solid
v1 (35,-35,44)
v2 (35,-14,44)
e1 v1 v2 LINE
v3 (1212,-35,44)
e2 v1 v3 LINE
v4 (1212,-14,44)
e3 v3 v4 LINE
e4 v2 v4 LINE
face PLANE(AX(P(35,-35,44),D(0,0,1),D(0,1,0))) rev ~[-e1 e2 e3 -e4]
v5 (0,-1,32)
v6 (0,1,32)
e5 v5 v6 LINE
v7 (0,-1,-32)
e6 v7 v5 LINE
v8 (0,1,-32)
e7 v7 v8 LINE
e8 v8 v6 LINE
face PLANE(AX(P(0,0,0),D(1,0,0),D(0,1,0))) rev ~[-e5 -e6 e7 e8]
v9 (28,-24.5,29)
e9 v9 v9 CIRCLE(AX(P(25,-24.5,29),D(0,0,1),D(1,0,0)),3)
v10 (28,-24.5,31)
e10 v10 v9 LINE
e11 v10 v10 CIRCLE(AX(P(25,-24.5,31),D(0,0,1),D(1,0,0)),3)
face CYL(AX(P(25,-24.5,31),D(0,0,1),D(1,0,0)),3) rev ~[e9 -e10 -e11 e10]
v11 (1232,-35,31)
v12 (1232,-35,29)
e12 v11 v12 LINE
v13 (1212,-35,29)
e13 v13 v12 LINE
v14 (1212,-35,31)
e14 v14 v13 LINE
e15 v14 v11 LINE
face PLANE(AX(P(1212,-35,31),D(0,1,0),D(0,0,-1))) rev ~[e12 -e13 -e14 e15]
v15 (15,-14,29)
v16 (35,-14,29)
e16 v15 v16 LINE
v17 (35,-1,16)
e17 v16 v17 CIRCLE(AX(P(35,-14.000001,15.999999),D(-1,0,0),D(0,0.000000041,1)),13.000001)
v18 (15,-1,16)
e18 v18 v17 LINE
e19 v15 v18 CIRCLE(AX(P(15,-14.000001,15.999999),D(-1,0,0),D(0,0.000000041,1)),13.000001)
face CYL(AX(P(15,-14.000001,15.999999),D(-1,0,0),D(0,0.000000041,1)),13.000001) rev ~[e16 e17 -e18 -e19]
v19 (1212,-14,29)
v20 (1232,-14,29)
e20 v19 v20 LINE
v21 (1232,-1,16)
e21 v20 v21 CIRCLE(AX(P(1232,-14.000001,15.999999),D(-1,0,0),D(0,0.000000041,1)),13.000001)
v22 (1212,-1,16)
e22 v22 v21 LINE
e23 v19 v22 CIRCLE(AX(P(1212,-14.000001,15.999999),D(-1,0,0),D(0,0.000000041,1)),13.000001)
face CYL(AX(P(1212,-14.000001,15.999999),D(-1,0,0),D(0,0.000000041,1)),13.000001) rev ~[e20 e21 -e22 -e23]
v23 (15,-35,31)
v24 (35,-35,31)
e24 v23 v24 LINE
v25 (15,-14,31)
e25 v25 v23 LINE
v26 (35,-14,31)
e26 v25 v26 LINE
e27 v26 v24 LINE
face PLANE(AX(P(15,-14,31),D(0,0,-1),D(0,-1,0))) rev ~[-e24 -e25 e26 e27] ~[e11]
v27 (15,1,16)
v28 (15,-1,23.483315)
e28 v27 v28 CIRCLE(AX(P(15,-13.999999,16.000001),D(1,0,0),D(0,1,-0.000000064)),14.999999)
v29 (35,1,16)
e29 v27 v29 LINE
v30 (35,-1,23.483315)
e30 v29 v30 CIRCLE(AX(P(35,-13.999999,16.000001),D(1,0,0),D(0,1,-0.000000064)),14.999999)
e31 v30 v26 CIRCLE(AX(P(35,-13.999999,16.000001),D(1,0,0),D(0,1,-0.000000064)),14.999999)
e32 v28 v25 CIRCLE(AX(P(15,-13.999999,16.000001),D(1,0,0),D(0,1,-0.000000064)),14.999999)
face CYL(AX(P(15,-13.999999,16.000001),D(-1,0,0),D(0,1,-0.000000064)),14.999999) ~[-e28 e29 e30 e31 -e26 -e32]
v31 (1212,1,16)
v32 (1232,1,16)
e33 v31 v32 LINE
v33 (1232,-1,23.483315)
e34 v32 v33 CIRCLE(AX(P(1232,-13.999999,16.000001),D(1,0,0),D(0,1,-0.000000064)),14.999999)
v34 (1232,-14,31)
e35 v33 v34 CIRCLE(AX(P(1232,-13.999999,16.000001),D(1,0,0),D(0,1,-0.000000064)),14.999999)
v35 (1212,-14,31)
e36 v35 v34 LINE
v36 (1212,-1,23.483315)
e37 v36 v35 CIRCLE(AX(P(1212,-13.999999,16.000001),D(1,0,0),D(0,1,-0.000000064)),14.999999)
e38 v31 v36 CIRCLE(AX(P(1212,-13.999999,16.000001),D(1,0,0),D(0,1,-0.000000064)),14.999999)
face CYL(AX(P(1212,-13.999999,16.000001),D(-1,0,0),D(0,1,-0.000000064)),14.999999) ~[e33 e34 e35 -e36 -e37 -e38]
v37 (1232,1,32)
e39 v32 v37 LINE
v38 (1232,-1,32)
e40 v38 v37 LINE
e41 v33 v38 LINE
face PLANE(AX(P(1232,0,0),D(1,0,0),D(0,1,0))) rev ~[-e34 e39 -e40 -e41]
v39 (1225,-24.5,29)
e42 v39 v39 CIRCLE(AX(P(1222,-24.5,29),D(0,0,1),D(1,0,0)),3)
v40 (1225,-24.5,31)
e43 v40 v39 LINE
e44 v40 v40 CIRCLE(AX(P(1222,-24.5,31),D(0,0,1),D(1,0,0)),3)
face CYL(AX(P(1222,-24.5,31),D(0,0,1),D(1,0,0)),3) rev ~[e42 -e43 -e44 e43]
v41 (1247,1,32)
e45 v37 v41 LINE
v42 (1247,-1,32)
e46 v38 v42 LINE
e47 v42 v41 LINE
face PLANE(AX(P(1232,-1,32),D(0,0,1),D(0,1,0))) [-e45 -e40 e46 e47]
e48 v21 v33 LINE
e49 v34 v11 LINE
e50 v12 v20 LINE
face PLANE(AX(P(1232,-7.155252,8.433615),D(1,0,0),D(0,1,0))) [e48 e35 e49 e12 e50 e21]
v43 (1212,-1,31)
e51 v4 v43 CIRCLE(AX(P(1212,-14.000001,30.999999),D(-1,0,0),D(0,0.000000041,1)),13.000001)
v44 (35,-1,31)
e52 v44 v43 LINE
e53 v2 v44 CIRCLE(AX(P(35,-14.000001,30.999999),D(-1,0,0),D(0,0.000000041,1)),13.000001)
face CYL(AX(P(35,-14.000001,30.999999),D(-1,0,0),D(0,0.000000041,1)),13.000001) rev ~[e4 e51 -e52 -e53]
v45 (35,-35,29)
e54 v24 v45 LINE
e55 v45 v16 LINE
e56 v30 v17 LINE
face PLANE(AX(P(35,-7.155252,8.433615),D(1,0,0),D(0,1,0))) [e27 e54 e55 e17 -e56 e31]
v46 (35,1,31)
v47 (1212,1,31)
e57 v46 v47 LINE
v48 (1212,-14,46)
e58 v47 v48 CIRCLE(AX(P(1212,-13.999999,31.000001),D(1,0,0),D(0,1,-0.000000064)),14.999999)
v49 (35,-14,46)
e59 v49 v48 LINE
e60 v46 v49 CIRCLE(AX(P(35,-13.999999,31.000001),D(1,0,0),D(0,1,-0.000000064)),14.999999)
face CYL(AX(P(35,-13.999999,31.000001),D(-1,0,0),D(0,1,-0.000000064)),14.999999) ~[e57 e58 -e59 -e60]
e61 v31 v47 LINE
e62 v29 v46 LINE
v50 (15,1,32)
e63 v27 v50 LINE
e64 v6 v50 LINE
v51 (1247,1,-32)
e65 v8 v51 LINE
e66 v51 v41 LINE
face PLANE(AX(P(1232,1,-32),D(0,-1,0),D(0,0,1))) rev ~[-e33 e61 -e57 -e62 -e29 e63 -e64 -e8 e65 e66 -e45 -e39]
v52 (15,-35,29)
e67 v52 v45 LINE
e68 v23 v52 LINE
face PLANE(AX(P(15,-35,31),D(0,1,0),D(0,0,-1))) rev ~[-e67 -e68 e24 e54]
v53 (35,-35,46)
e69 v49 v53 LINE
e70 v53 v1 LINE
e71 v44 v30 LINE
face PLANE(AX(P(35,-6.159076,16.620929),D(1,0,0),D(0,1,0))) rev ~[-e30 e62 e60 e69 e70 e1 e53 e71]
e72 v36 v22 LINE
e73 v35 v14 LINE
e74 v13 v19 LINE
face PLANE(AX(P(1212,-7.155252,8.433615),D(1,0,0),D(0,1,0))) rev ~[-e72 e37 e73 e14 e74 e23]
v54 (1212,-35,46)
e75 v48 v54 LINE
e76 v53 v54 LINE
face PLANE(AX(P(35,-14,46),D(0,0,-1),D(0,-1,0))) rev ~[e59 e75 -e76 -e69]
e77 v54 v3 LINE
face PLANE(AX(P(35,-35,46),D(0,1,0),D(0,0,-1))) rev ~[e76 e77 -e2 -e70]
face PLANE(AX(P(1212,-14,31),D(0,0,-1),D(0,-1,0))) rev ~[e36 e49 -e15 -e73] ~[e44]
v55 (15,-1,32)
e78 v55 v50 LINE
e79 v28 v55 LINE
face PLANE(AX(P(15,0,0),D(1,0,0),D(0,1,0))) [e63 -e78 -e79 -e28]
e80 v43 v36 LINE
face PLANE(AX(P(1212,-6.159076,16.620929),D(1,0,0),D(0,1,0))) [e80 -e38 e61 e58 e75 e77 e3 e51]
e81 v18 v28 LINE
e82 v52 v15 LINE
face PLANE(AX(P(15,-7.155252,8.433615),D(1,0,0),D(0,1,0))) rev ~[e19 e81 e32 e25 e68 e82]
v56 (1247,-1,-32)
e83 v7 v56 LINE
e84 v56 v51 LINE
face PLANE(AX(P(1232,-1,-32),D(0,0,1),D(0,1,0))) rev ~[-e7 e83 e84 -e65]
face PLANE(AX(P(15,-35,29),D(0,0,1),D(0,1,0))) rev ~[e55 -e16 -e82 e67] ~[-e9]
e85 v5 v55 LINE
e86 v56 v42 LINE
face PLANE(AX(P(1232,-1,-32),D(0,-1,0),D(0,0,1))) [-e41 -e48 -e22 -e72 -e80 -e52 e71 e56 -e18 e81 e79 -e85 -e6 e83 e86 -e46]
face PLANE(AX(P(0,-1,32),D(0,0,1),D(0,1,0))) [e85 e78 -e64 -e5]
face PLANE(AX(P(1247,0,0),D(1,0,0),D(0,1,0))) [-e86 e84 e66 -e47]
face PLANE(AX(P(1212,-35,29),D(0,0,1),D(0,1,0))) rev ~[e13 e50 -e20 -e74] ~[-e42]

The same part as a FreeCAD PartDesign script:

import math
import FreeCAD as App
import Part
import Sketcher
from FreeCAD import Vector

doc = App.newDocument("Part")
body = doc.addObject("PartDesign::Body", "Body")

# Sketch on YZ plane
sketch1 = doc.addObject("Sketcher::SketchObject", "Sketch")
body.addObject(sketch1)
sketch1.AttachmentSupport = (doc.YZ_Plane, [""])
sketch1.MapMode = "FlatFace"
sketch1.addGeometry(Part.LineSegment(Vector(-1, 32, 0), Vector(-1, -32, 0)), False)
sketch1.addGeometry(Part.LineSegment(Vector(-1, -32, 0), Vector(1, -32, 0)), False)
sketch1.addGeometry(Part.LineSegment(Vector(1, -32, 0), Vector(1, 32, 0)), False)
sketch1.addGeometry(Part.LineSegment(Vector(1, 32, 0), Vector(-1, 32, 0)), False)
sketch1.addConstraint(Sketcher.Constraint("Coincident", 0, 2, 1, 1))
sketch1.addConstraint(Sketcher.Constraint("Coincident", 1, 2, 2, 1))
sketch1.addConstraint(Sketcher.Constraint("Coincident", 2, 2, 3, 1))
sketch1.addConstraint(Sketcher.Constraint("Coincident", 3, 2, 0, 1))
sketch1.addConstraint(Sketcher.Constraint("Vertical", 0))
sketch1.addConstraint(Sketcher.Constraint("Horizontal", 1))
sketch1.addConstraint(Sketcher.Constraint("Vertical", 2))
sketch1.addConstraint(Sketcher.Constraint("Horizontal", 3))
sketch1.addConstraint(Sketcher.Constraint("Symmetric", 0, 2, 2, 2, -1, 1))
sketch1.addConstraint(Sketcher.Constraint("DistanceX", 1, 1, 1, 2, 2.0))
sketch1.addConstraint(Sketcher.Constraint("DistanceY", 0, 2, 0, 1, 64.0))
pad1 = doc.addObject("PartDesign::Pad", "Pad")
body.addObject(pad1)
pad1.Profile = sketch1
pad1.Length = 15
body2 = doc.addObject("PartDesign::Body", "Body001")

# Sketch on YZ plane
sketch2 = doc.addObject("Sketcher::SketchObject", "Sketch001")
body2.addObject(sketch2)
sketch2.AttachmentSupport = (doc.getObject("YZ_Plane001"), [""])
sketch2.MapMode = "FlatFace"
sketch2.AttachmentOffset = App.Placement(Vector(0, 0, 1212), App.Rotation())
sketch2.addGeometry(Part.LineSegment(Vector(-1, -32, 0), Vector(1, -32, 0)), False)
sketch2.addGeometry(Part.LineSegment(Vector(1, -32, 0), Vector(1, 16, 0)), False)
sketch2.addGeometry(Part.ArcOfCircle(Part.Circle(Vector(-14, 16, 0), Vector(0, 0, 1), 15), math.radians(0), math.radians(90)), False)
sketch2.addGeometry(Part.LineSegment(Vector(-14, 31, 0), Vector(-35, 31, 0)), False)
sketch2.addGeometry(Part.LineSegment(Vector(-35, 31, 0), Vector(-35, 29, 0)), False)
sketch2.addGeometry(Part.LineSegment(Vector(-35, 29, 0), Vector(-14, 29, 0)), False)
sketch2.addGeometry(Part.ArcOfCircle(Part.Circle(Vector(-14, 16, 0), Vector(0, 0, 1), 13), math.radians(0), math.radians(90)), False)
sketch2.addGeometry(Part.LineSegment(Vector(-1, 16, 0), Vector(-1, -32, 0)), False)
sketch2.addConstraint(Sketcher.Constraint("Coincident", 0, 2, 1, 1))
sketch2.addConstraint(Sketcher.Constraint("Tangent", 1, 2, 2, 1))
sketch2.addConstraint(Sketcher.Constraint("Tangent", 2, 2, 3, 1))
sketch2.addConstraint(Sketcher.Constraint("Coincident", 3, 2, 4, 1))
sketch2.addConstraint(Sketcher.Constraint("Coincident", 4, 2, 5, 1))
sketch2.addConstraint(Sketcher.Constraint("Tangent", 5, 2, 6, 2))
sketch2.addConstraint(Sketcher.Constraint("Tangent", 6, 1, 7, 1))
sketch2.addConstraint(Sketcher.Constraint("Coincident", 7, 2, 0, 1))
sketch2.addConstraint(Sketcher.Constraint("Horizontal", 0))
sketch2.addConstraint(Sketcher.Constraint("Vertical", 1))
sketch2.addConstraint(Sketcher.Constraint("Horizontal", 3))
sketch2.addConstraint(Sketcher.Constraint("Vertical", 4))
sketch2.addConstraint(Sketcher.Constraint("Horizontal", 5))
sketch2.addConstraint(Sketcher.Constraint("Vertical", 7))
sketch2.addConstraint(Sketcher.Constraint("Coincident", 6, 3, 2, 3))
sketch2.addConstraint(Sketcher.Constraint("Radius", 2, 14.999999))
sketch2.addConstraint(Sketcher.Constraint("Radius", 6, 13.000001))
sketch2.addConstraint(Sketcher.Constraint("DistanceX", 3, 2, 3, 1, 21.0))
sketch2.addConstraint(Sketcher.Constraint("DistanceY", 1, 1, 1, 2, 48.0))
sketch2.addConstraint(Sketcher.Constraint("DistanceX", 2, 3, -1, 1, 13.999999))
sketch2.addConstraint(Sketcher.Constraint("DistanceY", -1, 1, 2, 3, 16.000001))
pad2 = doc.addObject("PartDesign::Pad", "Pad001")
body2.addObject(pad2)
pad2.Profile = sketch2
pad2.Length = 20

# Sketch on YZ plane
sketch3 = doc.addObject("Sketcher::SketchObject", "Sketch002")
body2.addObject(sketch3)
sketch3.AttachmentSupport = (doc.getObject("YZ_Plane001"), [""])
sketch3.MapMode = "FlatFace"
sketch3.AttachmentOffset = App.Placement(Vector(0, 0, 35), App.Rotation())
sketch3.addGeometry(Part.LineSegment(Vector(-1, -32, 0), Vector(1, -32, 0)), False)
sketch3.addGeometry(Part.LineSegment(Vector(1, -32, 0), Vector(1, 31, 0)), False)
sketch3.addGeometry(Part.ArcOfCircle(Part.Circle(Vector(-14, 31, 0), Vector(0, 0, 1), 15), math.radians(0), math.radians(90)), False)
sketch3.addGeometry(Part.LineSegment(Vector(-14, 46, 0), Vector(-35, 46, 0)), False)
sketch3.addGeometry(Part.LineSegment(Vector(-35, 46, 0), Vector(-35, 44, 0)), False)
sketch3.addGeometry(Part.LineSegment(Vector(-35, 44, 0), Vector(-14, 44, 0)), False)
sketch3.addGeometry(Part.ArcOfCircle(Part.Circle(Vector(-14, 31, 0), Vector(0, 0, 1), 13), math.radians(0), math.radians(90)), False)
sketch3.addGeometry(Part.LineSegment(Vector(-1, 31, 0), Vector(-1, -32, 0)), False)
sketch3.addConstraint(Sketcher.Constraint("Coincident", 0, 2, 1, 1))
sketch3.addConstraint(Sketcher.Constraint("Tangent", 1, 2, 2, 1))
sketch3.addConstraint(Sketcher.Constraint("Tangent", 2, 2, 3, 1))
sketch3.addConstraint(Sketcher.Constraint("Coincident", 3, 2, 4, 1))
sketch3.addConstraint(Sketcher.Constraint("Coincident", 4, 2, 5, 1))
sketch3.addConstraint(Sketcher.Constraint("Tangent", 5, 2, 6, 2))
sketch3.addConstraint(Sketcher.Constraint("Tangent", 6, 1, 7, 1))
sketch3.addConstraint(Sketcher.Constraint("Coincident", 7, 2, 0, 1))
sketch3.addConstraint(Sketcher.Constraint("Horizontal", 0))
sketch3.addConstraint(Sketcher.Constraint("Vertical", 1))
sketch3.addConstraint(Sketcher.Constraint("Horizontal", 3))
sketch3.addConstraint(Sketcher.Constraint("Vertical", 4))
sketch3.addConstraint(Sketcher.Constraint("Horizontal", 5))
sketch3.addConstraint(Sketcher.Constraint("Vertical", 7))
sketch3.addConstraint(Sketcher.Constraint("Coincident", 6, 3, 2, 3))
sketch3.addConstraint(Sketcher.Constraint("Radius", 2, 14.999999))
sketch3.addConstraint(Sketcher.Constraint("Radius", 6, 13.000001))
sketch3.addConstraint(Sketcher.Constraint("DistanceX", 3, 2, 3, 1, 21.0))
sketch3.addConstraint(Sketcher.Constraint("DistanceY", 1, 1, 1, 2, 63.0))
sketch3.addConstraint(Sketcher.Constraint("DistanceX", 2, 3, -1, 1, 13.999999))
sketch3.addConstraint(Sketcher.Constraint("DistanceY", -1, 1, 2, 3, 31.000001))
pad3 = doc.addObject("PartDesign::Pad", "Pad002")
body2.addObject(pad3)
pad3.Profile = sketch3
pad3.Length = 1177
body.AllowCompound = True
doc.recompute()

boolean = doc.addObject("PartDesign::Boolean", "Boolean")
body.addObject(boolean)
boolean.Type = "Fuse"
boolean.addObjects([body2])

# Sketch on YZ plane
sketch4 = doc.addObject("Sketcher::SketchObject", "Sketch003")
body.addObject(sketch4)
sketch4.AttachmentSupport = (doc.YZ_Plane, [""])
sketch4.MapMode = "FlatFace"
sketch4.AttachmentOffset = App.Placement(Vector(0, 0, 15), App.Rotation())
sketch4.addGeometry(Part.LineSegment(Vector(-1, -32, 0), Vector(1, -32, 0)), False)
sketch4.addGeometry(Part.LineSegment(Vector(1, -32, 0), Vector(1, 16, 0)), False)
sketch4.addGeometry(Part.ArcOfCircle(Part.Circle(Vector(-14, 16, 0), Vector(0, 0, 1), 15), math.radians(0), math.radians(90)), False)
sketch4.addGeometry(Part.LineSegment(Vector(-14, 31, 0), Vector(-35, 31, 0)), False)
sketch4.addGeometry(Part.LineSegment(Vector(-35, 31, 0), Vector(-35, 29, 0)), False)
sketch4.addGeometry(Part.LineSegment(Vector(-35, 29, 0), Vector(-14, 29, 0)), False)
sketch4.addGeometry(Part.ArcOfCircle(Part.Circle(Vector(-14, 16, 0), Vector(0, 0, 1), 13), math.radians(0), math.radians(90)), False)
sketch4.addGeometry(Part.LineSegment(Vector(-1, 16, 0), Vector(-1, -32, 0)), False)
sketch4.addConstraint(Sketcher.Constraint("Coincident", 0, 2, 1, 1))
sketch4.addConstraint(Sketcher.Constraint("Tangent", 1, 2, 2, 1))
sketch4.addConstraint(Sketcher.Constraint("Tangent", 2, 2, 3, 1))
sketch4.addConstraint(Sketcher.Constraint("Coincident", 3, 2, 4, 1))
sketch4.addConstraint(Sketcher.Constraint("Coincident", 4, 2, 5, 1))
sketch4.addConstraint(Sketcher.Constraint("Tangent", 5, 2, 6, 2))
sketch4.addConstraint(Sketcher.Constraint("Tangent", 6, 1, 7, 1))
sketch4.addConstraint(Sketcher.Constraint("Coincident", 7, 2, 0, 1))
sketch4.addConstraint(Sketcher.Constraint("Horizontal", 0))
sketch4.addConstraint(Sketcher.Constraint("Vertical", 1))
sketch4.addConstraint(Sketcher.Constraint("Horizontal", 3))
sketch4.addConstraint(Sketcher.Constraint("Vertical", 4))
sketch4.addConstraint(Sketcher.Constraint("Horizontal", 5))
sketch4.addConstraint(Sketcher.Constraint("Vertical", 7))
sketch4.addConstraint(Sketcher.Constraint("Coincident", 6, 3, 2, 3))
sketch4.addConstraint(Sketcher.Constraint("Radius", 2, 14.999999))
sketch4.addConstraint(Sketcher.Constraint("Radius", 6, 13.000001))
sketch4.addConstraint(Sketcher.Constraint("DistanceX", 3, 2, 3, 1, 21.0))
sketch4.addConstraint(Sketcher.Constraint("DistanceY", 1, 1, 1, 2, 48.0))
sketch4.addConstraint(Sketcher.Constraint("DistanceX", 2, 3, -1, 1, 13.999999))
sketch4.addConstraint(Sketcher.Constraint("DistanceY", -1, 1, 2, 3, 16.000001))
pad4 = doc.addObject("PartDesign::Pad", "Pad003")
body.addObject(pad4)
pad4.Profile = sketch4
pad4.Length = 20

# Sketch on YZ plane
sketch5 = doc.addObject("Sketcher::SketchObject", "Sketch004")
body.addObject(sketch5)
sketch5.AttachmentSupport = (doc.YZ_Plane, [""])
sketch5.MapMode = "FlatFace"
sketch5.AttachmentOffset = App.Placement(Vector(0, 0, 1232), App.Rotation())
sketch5.addGeometry(Part.LineSegment(Vector(-1, 32, 0), Vector(-1, -32, 0)), False)
sketch5.addGeometry(Part.LineSegment(Vector(-1, -32, 0), Vector(1, -32, 0)), False)
sketch5.addGeometry(Part.LineSegment(Vector(1, -32, 0), Vector(1, 32, 0)), False)
sketch5.addGeometry(Part.LineSegment(Vector(1, 32, 0), Vector(-1, 32, 0)), False)
sketch5.addConstraint(Sketcher.Constraint("Coincident", 0, 2, 1, 1))
sketch5.addConstraint(Sketcher.Constraint("Coincident", 1, 2, 2, 1))
sketch5.addConstraint(Sketcher.Constraint("Coincident", 2, 2, 3, 1))
sketch5.addConstraint(Sketcher.Constraint("Coincident", 3, 2, 0, 1))
sketch5.addConstraint(Sketcher.Constraint("Vertical", 0))
sketch5.addConstraint(Sketcher.Constraint("Horizontal", 1))
sketch5.addConstraint(Sketcher.Constraint("Vertical", 2))
sketch5.addConstraint(Sketcher.Constraint("Horizontal", 3))
sketch5.addConstraint(Sketcher.Constraint("Symmetric", 0, 2, 2, 2, -1, 1))
sketch5.addConstraint(Sketcher.Constraint("DistanceX", 1, 1, 1, 2, 2.0))
sketch5.addConstraint(Sketcher.Constraint("DistanceY", 0, 2, 0, 1, 64.0))
pad5 = doc.addObject("PartDesign::Pad", "Pad004")
body.addObject(pad5)
pad5.Profile = sketch5
pad5.Length = 15

# Sketch on XY plane
sketch6 = doc.addObject("Sketcher::SketchObject", "Sketch005")
body.addObject(sketch6)
sketch6.AttachmentSupport = (doc.XY_Plane, [""])
sketch6.MapMode = "FlatFace"
sketch6.AttachmentOffset = App.Placement(Vector(0, 0, 31), App.Rotation())
sketch6.addGeometry(Part.Circle(Vector(1222, -24.5, 0), Vector(0, 0, 1), 3), False)
sketch6.addConstraint(Sketcher.Constraint("Diameter", 0, 6.0))
sketch6.addConstraint(Sketcher.Constraint("DistanceX", -1, 1, 0, 3, 1222.0))
sketch6.addConstraint(Sketcher.Constraint("DistanceY", 0, 3, -1, 1, 24.5))
pocket1 = doc.addObject("PartDesign::Pocket", "Pocket")
body.addObject(pocket1)
pocket1.Profile = sketch6
pocket1.Length = 2

# Sketch on XY plane
sketch7 = doc.addObject("Sketcher::SketchObject", "Sketch006")
body.addObject(sketch7)
sketch7.AttachmentSupport = (doc.XY_Plane, [""])
sketch7.MapMode = "FlatFace"
sketch7.AttachmentOffset = App.Placement(Vector(0, 0, 31), App.Rotation())
sketch7.addGeometry(Part.Circle(Vector(25, -24.5, 0), Vector(0, 0, 1), 3), False)
sketch7.addConstraint(Sketcher.Constraint("Diameter", 0, 6.0))
sketch7.addConstraint(Sketcher.Constraint("DistanceX", -1, 1, 0, 3, 25.0))
sketch7.addConstraint(Sketcher.Constraint("DistanceY", 0, 3, -1, 1, 24.5))
pocket2 = doc.addObject("PartDesign::Pocket", "Pocket001")
body.addObject(pocket2)
pocket2.Profile = sketch7
pocket2.Length = 2

doc.recompute()
